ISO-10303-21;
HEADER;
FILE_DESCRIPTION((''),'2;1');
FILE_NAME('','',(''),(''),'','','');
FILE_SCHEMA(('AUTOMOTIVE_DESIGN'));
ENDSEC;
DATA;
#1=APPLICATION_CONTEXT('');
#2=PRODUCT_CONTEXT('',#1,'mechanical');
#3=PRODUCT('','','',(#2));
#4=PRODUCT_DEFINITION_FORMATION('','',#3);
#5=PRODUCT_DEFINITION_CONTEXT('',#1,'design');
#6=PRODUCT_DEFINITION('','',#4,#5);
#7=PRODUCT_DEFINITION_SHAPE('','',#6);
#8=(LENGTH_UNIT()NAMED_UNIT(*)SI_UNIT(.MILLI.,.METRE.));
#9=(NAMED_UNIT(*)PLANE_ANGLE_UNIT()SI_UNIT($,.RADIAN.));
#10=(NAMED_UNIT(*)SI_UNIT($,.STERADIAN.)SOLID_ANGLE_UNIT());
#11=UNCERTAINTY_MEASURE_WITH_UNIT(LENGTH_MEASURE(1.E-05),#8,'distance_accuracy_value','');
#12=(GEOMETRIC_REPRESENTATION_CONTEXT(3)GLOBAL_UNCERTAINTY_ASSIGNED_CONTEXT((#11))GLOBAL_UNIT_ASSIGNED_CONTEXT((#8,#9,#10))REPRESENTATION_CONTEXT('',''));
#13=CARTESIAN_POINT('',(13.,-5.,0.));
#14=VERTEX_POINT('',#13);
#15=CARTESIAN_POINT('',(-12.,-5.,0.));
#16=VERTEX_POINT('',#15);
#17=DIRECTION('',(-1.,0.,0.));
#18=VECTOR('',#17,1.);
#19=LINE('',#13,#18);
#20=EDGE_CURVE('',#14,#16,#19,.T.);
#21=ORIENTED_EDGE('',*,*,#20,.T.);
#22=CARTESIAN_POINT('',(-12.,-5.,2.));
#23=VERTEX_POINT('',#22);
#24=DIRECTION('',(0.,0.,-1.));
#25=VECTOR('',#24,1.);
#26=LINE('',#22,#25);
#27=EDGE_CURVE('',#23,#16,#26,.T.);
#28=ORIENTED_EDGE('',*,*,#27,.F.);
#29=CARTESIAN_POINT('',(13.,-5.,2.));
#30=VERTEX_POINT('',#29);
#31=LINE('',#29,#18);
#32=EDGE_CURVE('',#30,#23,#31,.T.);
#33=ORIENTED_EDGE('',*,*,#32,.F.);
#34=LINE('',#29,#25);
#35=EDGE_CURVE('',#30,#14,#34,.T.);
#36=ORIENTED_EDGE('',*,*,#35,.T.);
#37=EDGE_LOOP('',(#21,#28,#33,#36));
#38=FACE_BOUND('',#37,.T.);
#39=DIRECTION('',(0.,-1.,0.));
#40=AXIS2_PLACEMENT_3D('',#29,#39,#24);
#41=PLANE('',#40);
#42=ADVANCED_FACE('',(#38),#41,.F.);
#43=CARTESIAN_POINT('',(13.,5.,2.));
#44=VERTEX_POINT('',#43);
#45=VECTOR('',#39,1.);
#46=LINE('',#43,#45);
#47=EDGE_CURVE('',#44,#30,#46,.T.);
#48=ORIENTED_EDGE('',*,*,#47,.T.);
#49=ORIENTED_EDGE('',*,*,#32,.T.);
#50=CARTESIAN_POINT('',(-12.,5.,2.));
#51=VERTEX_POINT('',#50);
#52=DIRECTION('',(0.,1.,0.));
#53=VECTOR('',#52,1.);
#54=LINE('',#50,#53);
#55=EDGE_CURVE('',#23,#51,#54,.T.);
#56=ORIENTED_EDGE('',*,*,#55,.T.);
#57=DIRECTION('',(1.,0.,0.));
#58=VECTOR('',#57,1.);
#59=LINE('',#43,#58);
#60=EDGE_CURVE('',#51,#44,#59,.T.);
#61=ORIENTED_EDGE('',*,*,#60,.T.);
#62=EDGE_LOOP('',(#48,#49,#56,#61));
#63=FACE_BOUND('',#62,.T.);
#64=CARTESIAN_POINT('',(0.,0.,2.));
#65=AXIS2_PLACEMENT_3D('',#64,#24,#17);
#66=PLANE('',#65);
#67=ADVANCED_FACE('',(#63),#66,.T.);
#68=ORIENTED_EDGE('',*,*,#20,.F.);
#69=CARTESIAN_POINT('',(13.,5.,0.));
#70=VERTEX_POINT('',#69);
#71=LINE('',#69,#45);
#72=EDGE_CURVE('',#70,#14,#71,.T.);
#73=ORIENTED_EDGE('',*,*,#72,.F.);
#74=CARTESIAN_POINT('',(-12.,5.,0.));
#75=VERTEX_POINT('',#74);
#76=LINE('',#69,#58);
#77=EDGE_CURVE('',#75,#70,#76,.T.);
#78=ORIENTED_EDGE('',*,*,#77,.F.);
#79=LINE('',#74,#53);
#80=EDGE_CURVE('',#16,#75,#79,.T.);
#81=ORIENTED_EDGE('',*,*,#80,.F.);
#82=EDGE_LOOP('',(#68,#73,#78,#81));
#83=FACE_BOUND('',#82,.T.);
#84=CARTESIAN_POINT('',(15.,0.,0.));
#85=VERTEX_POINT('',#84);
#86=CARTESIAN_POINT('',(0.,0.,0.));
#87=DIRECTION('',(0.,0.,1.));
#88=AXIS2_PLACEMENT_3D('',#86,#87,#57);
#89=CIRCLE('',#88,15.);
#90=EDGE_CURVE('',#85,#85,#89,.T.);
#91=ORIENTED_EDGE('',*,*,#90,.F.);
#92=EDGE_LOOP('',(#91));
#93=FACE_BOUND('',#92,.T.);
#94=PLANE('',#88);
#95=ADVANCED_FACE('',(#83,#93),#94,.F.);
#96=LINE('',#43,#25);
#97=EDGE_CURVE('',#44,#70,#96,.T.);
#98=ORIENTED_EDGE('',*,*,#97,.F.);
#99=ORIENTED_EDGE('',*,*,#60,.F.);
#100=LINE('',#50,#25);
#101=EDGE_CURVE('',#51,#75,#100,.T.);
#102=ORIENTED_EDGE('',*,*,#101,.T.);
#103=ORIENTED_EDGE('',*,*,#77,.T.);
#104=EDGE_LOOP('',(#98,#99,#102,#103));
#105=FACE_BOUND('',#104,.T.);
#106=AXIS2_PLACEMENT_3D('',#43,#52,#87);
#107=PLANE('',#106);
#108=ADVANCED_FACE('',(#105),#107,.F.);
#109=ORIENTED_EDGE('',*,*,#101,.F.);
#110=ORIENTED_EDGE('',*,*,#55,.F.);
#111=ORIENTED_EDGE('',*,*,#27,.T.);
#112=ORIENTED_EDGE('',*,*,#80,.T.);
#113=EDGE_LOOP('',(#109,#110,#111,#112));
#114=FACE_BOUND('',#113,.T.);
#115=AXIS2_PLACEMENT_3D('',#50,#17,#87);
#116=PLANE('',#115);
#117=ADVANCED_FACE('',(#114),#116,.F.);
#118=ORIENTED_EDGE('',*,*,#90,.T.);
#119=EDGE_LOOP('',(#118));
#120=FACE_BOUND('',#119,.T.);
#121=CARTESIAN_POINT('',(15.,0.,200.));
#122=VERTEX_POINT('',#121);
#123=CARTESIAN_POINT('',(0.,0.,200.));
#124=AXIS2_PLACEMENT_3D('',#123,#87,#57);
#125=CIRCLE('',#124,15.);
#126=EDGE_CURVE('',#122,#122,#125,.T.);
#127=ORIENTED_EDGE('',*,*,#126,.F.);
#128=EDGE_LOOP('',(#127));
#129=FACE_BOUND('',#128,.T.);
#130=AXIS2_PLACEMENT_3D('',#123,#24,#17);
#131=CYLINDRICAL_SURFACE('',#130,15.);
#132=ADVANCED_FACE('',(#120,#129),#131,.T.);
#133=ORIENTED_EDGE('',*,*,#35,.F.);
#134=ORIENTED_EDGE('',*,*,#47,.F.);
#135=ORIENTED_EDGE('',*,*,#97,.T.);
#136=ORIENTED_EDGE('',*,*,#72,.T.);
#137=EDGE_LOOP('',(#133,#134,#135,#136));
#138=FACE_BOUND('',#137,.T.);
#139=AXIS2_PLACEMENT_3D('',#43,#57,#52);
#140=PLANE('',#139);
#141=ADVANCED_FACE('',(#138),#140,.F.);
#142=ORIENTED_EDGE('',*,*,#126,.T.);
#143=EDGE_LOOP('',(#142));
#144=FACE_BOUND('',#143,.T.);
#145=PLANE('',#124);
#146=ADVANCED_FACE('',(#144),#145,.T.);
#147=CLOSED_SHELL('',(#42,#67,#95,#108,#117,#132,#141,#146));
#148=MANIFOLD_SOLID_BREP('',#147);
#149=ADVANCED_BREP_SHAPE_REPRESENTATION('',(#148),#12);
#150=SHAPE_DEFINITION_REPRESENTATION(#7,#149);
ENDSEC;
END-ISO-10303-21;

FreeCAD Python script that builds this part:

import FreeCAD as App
import Part
import Sketcher

V = App.Vector

doc = App.newDocument("Part")
body = doc.addObject("PartDesign::Body", "Body")

# Sketch on XY plane
sketch1 = body.newObject("Sketcher::SketchObject", "Sketch")
sketch1.AttachmentSupport = (doc.getObject("XY_Plane"), [""])
sketch1.MapMode = "FlatFace"
sketch1.addGeometry(Part.Circle(V(0, 0, 0), V(0, 0, 1), 15), False)
sketch1.addConstraint([
    Sketcher.Constraint("Coincident", 0, 3, -1, 1),
    Sketcher.Constraint("Diameter", 0, 30.0),
])
pad1 = body.newObject("PartDesign::Pad", "Pad")
pad1.Profile = sketch1
pad1.Length = 200

# Sketch on XY plane
sketch2 = body.newObject("Sketcher::SketchObject", "Sketch001")
sketch2.AttachmentSupport = (doc.getObject("XY_Plane"), [""])
sketch2.MapMode = "FlatFace"
sketch2.addGeometry([
    Part.LineSegment(V(13, 5, 0), V(13, -5, 0)),
    Part.LineSegment(V(13, -5, 0), V(-12, -5, 0)),
    Part.LineSegment(V(-12, -5, 0), V(-12, 5, 0)),
    Part.LineSegment(V(-12, 5, 0), V(13, 5, 0)),
], False)
sketch2.addConstraint([
    Sketcher.Constraint("Coincident", 0, 2, 1, 1),
    Sketcher.Constraint("Coincident", 1, 2, 2, 1),
    Sketcher.Constraint("Coincident", 2, 2, 3, 1),
    Sketcher.Constraint("Coincident", 3, 2, 0, 1),
    Sketcher.Constraint("Vertical", 0),
    Sketcher.Constraint("Horizontal", 1),
    Sketcher.Constraint("Vertical", 2),
    Sketcher.Constraint("Horizontal", 3),
    Sketcher.Constraint("DistanceX", 1, 2, 1, 1, 25.0),
    Sketcher.Constraint("DistanceY", 0, 2, 0, 1, 10.0),
    Sketcher.Constraint("DistanceX", -1, 1, 0, 2, 13.0),
    Sketcher.Constraint("DistanceY", 0, 2, -1, 1, 5.0),
])
pocket1 = body.newObject("PartDesign::Pocket", "Pocket")
pocket1.Profile = sketch2
pocket1.Length = 2
pocket1.Reversed = True

doc.recompute()
